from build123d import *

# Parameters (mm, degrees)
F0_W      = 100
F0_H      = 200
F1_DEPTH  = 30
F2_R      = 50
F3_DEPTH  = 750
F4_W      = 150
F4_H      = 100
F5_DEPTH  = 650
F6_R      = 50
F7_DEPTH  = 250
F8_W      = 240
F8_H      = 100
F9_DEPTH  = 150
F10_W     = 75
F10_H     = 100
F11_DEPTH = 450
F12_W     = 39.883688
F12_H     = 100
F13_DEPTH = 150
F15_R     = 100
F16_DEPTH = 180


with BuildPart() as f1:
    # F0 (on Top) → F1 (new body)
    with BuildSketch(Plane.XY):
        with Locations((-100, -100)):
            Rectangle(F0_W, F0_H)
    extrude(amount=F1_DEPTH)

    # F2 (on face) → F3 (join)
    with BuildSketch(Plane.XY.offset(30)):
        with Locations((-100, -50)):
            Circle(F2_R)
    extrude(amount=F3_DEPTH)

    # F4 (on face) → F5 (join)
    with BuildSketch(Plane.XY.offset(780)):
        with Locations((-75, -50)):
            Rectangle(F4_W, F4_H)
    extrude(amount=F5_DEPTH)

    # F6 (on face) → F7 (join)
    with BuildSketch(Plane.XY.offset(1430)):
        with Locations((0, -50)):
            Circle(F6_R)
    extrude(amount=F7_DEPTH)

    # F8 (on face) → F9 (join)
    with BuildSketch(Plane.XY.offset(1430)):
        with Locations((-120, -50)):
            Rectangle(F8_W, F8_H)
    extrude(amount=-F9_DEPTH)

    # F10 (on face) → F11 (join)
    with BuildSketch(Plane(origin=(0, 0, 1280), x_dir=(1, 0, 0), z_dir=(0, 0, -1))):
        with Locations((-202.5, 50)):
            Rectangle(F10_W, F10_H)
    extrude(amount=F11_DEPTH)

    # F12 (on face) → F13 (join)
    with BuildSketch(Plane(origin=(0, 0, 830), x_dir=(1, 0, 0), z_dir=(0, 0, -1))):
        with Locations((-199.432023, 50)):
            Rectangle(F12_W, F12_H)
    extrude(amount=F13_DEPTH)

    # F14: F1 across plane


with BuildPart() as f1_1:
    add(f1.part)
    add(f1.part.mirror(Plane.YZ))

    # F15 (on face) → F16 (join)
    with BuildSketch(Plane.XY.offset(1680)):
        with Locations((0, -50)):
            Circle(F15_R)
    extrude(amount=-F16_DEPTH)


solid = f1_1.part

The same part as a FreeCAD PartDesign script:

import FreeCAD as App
import Part
import Sketcher
Q = App.Units.Quantity

doc = App.newDocument("Part")
params = doc.addObject("Spreadsheet::Sheet", "Params")
for row, (alias, value) in enumerate([
    ("sketch1_width", "100 mm"),
    ("sketch1_height", "200 mm"),
    ("pad1_length", "30 mm"),
    ("sketch2_diameter", "100 mm"),
    ("pad2_length", "750 mm"),
    ("sketch3_width", "150 mm"),
    ("sketch3_height", "100 mm"),
    ("pad3_length", "650 mm"),
    ("sketch4_diameter", "100 mm"),
    ("pad4_length", "250 mm"),
    ("sketch5_width", "240 mm"),
    ("sketch5_height", "100 mm"),
    ("pad5_length", "150 mm"),
    ("sketch6_width", "75 mm"),
    ("sketch6_height", "100 mm"),
    ("pad6_length", "450 mm"),
    ("sketch7_height", "100 mm"),
    ("pad7_length", "150 mm"),
    ("sketch8_diameter", "200 mm"),
    ("pad8_length", "180 mm"),
], start=1):
    params.set(f"A{row}", alias)
    params.set(f"B{row}", "=" + value)
    params.setAlias(f"B{row}", alias)

body = doc.addObject("PartDesign::Body", "Body")

sketch1 = doc.addObject("Sketcher::SketchObject", "Sketch")
body.addObject(sketch1)
sketch1.AttachmentSupport = (doc.XY_Plane, [""])
sketch1.MapMode = "FlatFace"
sketch1.addGeometry([
    Part.LineSegment(App.Vector(-150, 0, 0), App.Vector(-150, -200, 0)),
    Part.LineSegment(App.Vector(-150, -200, 0), App.Vector(-50, -200, 0)),
    Part.LineSegment(App.Vector(-50, -200, 0), App.Vector(-50, 0, 0)),
    Part.LineSegment(App.Vector(-50, 0, 0), App.Vector(-150, 0, 0)),
], False)
sketch1.addConstraint([
    Sketcher.Constraint("Coincident", 0, 2, 1, 1),
    Sketcher.Constraint("Coincident", 1, 2, 2, 1),
    Sketcher.Constraint("Coincident", 2, 2, 3, 1),
    Sketcher.Constraint("Coincident", 3, 2, 0, 1),
    Sketcher.Constraint("Vertical", 0),
    Sketcher.Constraint("Horizontal", 1),
    Sketcher.Constraint("Vertical", 2),
    Sketcher.Constraint("Horizontal", 3),
    Sketcher.Constraint("PointOnObject", 2, 2, -1),
    Sketcher.Constraint("DistanceX", 1, 1, 1, 2, Q("100 mm")),
    Sketcher.Constraint("DistanceY", 0, 2, 0, 1, Q("200 mm")),
    Sketcher.Constraint("DistanceX", 0, 2, -1, 1, Q("150 mm")),
])
sketch1.setExpression("Constraints[9]", "Params.sketch1_width")
sketch1.setExpression("Constraints[10]", "Params.sketch1_height")
pad1 = doc.addObject("PartDesign::Pad", "Pad")
body.addObject(pad1)
pad1.Profile = sketch1
pad1.setExpression("Length", "Params.pad1_length")

sketch2 = doc.addObject("Sketcher::SketchObject", "Sketch001")
body.addObject(sketch2)
sketch2.AttachmentSupport = (doc.XY_Plane, [""])
sketch2.MapMode = "FlatFace"
sketch2.AttachmentOffset = App.Placement(App.Vector(0, 0, 30), App.Rotation())
sketch2.addGeometry(Part.Circle(App.Vector(-100, -50, 0), App.Vector(0, 0, 1), 50), False)
sketch2.addConstraint([
    Sketcher.Constraint("Diameter", 0, Q("100 mm")),
    Sketcher.Constraint("DistanceX", 0, 3, -1, 1, Q("100 mm")),
    Sketcher.Constraint("DistanceY", 0, 3, -1, 1, Q("50 mm")),
])
sketch2.setExpression("Constraints[0]", "Params.sketch2_diameter")
pad2 = doc.addObject("PartDesign::Pad", "Pad001")
body.addObject(pad2)
pad2.Profile = sketch2
pad2.setExpression("Length", "Params.pad2_length")

sketch3 = doc.addObject("Sketcher::SketchObject", "Sketch002")
body.addObject(sketch3)
sketch3.AttachmentSupport = (doc.XY_Plane, [""])
sketch3.MapMode = "FlatFace"
sketch3.AttachmentOffset = App.Placement(App.Vector(0, 0, 780), App.Rotation())
sketch3.addGeometry([
    Part.LineSegment(App.Vector(-150, 0, 0), App.Vector(-150, -100, 0)),
    Part.LineSegment(App.Vector(-150, -100, 0), App.Vector(0, -100, 0)),
    Part.LineSegment(App.Vector(0, -100, 0), App.Vector(0, 0, 0)),
    Part.LineSegment(App.Vector(0, 0, 0), App.Vector(-150, 0, 0)),
], False)
sketch3.addConstraint([
    Sketcher.Constraint("Coincident", 0, 2, 1, 1),
    Sketcher.Constraint("Coincident", 1, 2, 2, 1),
    Sketcher.Constraint("Coincident", 2, 2, 3, 1),
    Sketcher.Constraint("Coincident", 3, 2, 0, 1),
    Sketcher.Constraint("Vertical", 0),
    Sketcher.Constraint("Horizontal", 1),
    Sketcher.Constraint("Vertical", 2),
    Sketcher.Constraint("Horizontal", 3),
    Sketcher.Constraint("Coincident", 2, 2, -1, 1),
    Sketcher.Constraint("DistanceX", 1, 1, 1, 2, Q("150 mm")),
    Sketcher.Constraint("DistanceY", 0, 2, 0, 1, Q("100 mm")),
])
sketch3.setExpression("Constraints[9]", "Params.sketch3_width")
sketch3.setExpression("Constraints[10]", "Params.sketch3_height")
pad3 = doc.addObject("PartDesign::Pad", "Pad002")
body.addObject(pad3)
pad3.Profile = sketch3
pad3.setExpression("Length", "Params.pad3_length")

sketch4 = doc.addObject("Sketcher::SketchObject", "Sketch003")
body.addObject(sketch4)
sketch4.AttachmentSupport = (doc.XY_Plane, [""])
sketch4.MapMode = "FlatFace"
sketch4.AttachmentOffset = App.Placement(App.Vector(0, 0, 1430), App.Rotation())
sketch4.addGeometry(Part.Circle(App.Vector(0, -50, 0), App.Vector(0, 0, 1), 50), False)
sketch4.addConstraint([
    Sketcher.Constraint("PointOnObject", 0, 3, -2),
    Sketcher.Constraint("Diameter", 0, Q("100 mm")),
    Sketcher.Constraint("DistanceY", 0, 3, -1, 1, Q("50 mm")),
])
sketch4.setExpression("Constraints[1]", "Params.sketch4_diameter")
pad4 = doc.addObject("PartDesign::Pad", "Pad003")
body.addObject(pad4)
pad4.Profile = sketch4
pad4.setExpression("Length", "Params.pad4_length")

sketch5 = doc.addObject("Sketcher::SketchObject", "Sketch004")
body.addObject(sketch5)
sketch5.AttachmentSupport = (doc.XY_Plane, [""])
sketch5.MapMode = "FlatFace"
sketch5.AttachmentOffset = App.Placement(App.Vector(0, 0, 1430), App.Rotation())
sketch5.addGeometry([
    Part.LineSegment(App.Vector(-240, 0, 0), App.Vector(-240, -100, 0)),
    Part.LineSegment(App.Vector(-240, -100, 0), App.Vector(0, -100, 0)),
    Part.LineSegment(App.Vector(0, -100, 0), App.Vector(0, 0, 0)),
    Part.LineSegment(App.Vector(0, 0, 0), App.Vector(-240, 0, 0)),
], False)
sketch5.addConstraint([
    Sketcher.Constraint("Coincident", 0, 2, 1, 1),
    Sketcher.Constraint("Coincident", 1, 2, 2, 1),
    Sketcher.Constraint("Coincident", 2, 2, 3, 1),
    Sketcher.Constraint("Coincident", 3, 2, 0, 1),
    Sketcher.Constraint("Vertical", 0),
    Sketcher.Constraint("Horizontal", 1),
    Sketcher.Constraint("Vertical", 2),
    Sketcher.Constraint("Horizontal", 3),
    Sketcher.Constraint("Coincident", 2, 2, -1, 1),
    Sketcher.Constraint("DistanceX", 1, 1, 1, 2, Q("240 mm")),
    Sketcher.Constraint("DistanceY", 0, 2, 0, 1, Q("100 mm")),
])
sketch5.setExpression("Constraints[9]", "Params.sketch5_width")
sketch5.setExpression("Constraints[10]", "Params.sketch5_height")
pad5 = doc.addObject("PartDesign::Pad", "Pad004")
body.addObject(pad5)
pad5.Profile = sketch5
pad5.setExpression("Length", "Params.pad5_length")
pad5.Reversed = True

sketch6 = doc.addObject("Sketcher::SketchObject", "Sketch005")
body.addObject(sketch6)
sketch6.AttachmentSupport = (doc.XY_Plane, [""])
sketch6.MapMode = "FlatFace"
sketch6.AttachmentOffset = App.Placement(App.Vector(0, 0, 1280), App.Rotation())
sketch6.addGeometry([
    Part.LineSegment(App.Vector(-240, -100, 0), App.Vector(-240, 0, 0)),
    Part.LineSegment(App.Vector(-240, 0, 0), App.Vector(-165, 0, 0)),
    Part.LineSegment(App.Vector(-165, 0, 0), App.Vector(-165, -100, 0)),
    Part.LineSegment(App.Vector(-165, -100, 0), App.Vector(-240, -100, 0)),
], False)
sketch6.addConstraint([
    Sketcher.Constraint("Coincident", 0, 2, 1, 1),
    Sketcher.Constraint("Coincident", 1, 2, 2, 1),
    Sketcher.Constraint("Coincident", 2, 2, 3, 1),
    Sketcher.Constraint("Coincident", 3, 2, 0, 1),
    Sketcher.Constraint("Vertical", 0),
    Sketcher.Constraint("Horizontal", 1),
    Sketcher.Constraint("Vertical", 2),
    Sketcher.Constraint("Horizontal", 3),
    Sketcher.Constraint("PointOnObject", 0, 2, -1),
    Sketcher.Constraint("DistanceX", 1, 1, 1, 2, Q("75 mm")),
    Sketcher.Constraint("DistanceY", 0, 1, 0, 2, Q("100 mm")),
    Sketcher.Constraint("DistanceX", 0, 2, -1, 1, Q("240 mm")),
])
sketch6.setExpression("Constraints[9]", "Params.sketch6_width")
sketch6.setExpression("Constraints[10]", "Params.sketch6_height")
pad6 = doc.addObject("PartDesign::Pad", "Pad005")
body.addObject(pad6)
pad6.Profile = sketch6
pad6.setExpression("Length", "Params.pad6_length")
pad6.Reversed = True

sketch7 = doc.addObject("Sketcher::SketchObject", "Sketch006")
body.addObject(sketch7)
sketch7.AttachmentSupport = (doc.XY_Plane, [""])
sketch7.MapMode = "FlatFace"
sketch7.AttachmentOffset = App.Placement(App.Vector(0, 0, 830), App.Rotation())
sketch7.addGeometry([
    Part.LineSegment(App.Vector(-219, -100, 0), App.Vector(-219, 0, 0)),
    Part.LineSegment(App.Vector(-219, 0, 0), App.Vector(-179, 0, 0)),
    Part.LineSegment(App.Vector(-179, 0, 0), App.Vector(-179, -100, 0)),
    Part.LineSegment(App.Vector(-179, -100, 0), App.Vector(-219, -100, 0)),
], False)
sketch7.addConstraint([
    Sketcher.Constraint("Coincident", 0, 2, 1, 1),
    Sketcher.Constraint("Coincident", 1, 2, 2, 1),
    Sketcher.Constraint("Coincident", 2, 2, 3, 1),
    Sketcher.Constraint("Coincident", 3, 2, 0, 1),
    Sketcher.Constraint("Vertical", 0),
    Sketcher.Constraint("Horizontal", 1),
    Sketcher.Constraint("Vertical", 2),
    Sketcher.Constraint("Horizontal", 3),
    Sketcher.Constraint("PointOnObject", 0, 2, -1),
    Sketcher.Constraint("DistanceY", 0, 1, 0, 2, Q("100 mm")),
    Sketcher.Constraint("DistanceX", 1, 1, 1, 2, Q("39.883688 mm")),
    Sketcher.Constraint("DistanceX", 1, 2, -1, 1, Q("179.490179 mm")),
])
sketch7.setExpression("Constraints[9]", "Params.sketch7_height")
pad7 = doc.addObject("PartDesign::Pad", "Pad006")
body.addObject(pad7)
pad7.Profile = sketch7
pad7.setExpression("Length", "Params.pad7_length")
pad7.Reversed = True
body2 = doc.addObject("PartDesign::Body", "Body001")
doc.recompute()

body2.BaseFeature = body
doc.recompute()

mirroring = doc.addObject("Part::Mirroring", "Mirroring")
mirroring.Source = body
mirroring.Base = App.Vector(0, 0, 0)
mirroring.Normal = App.Vector(1, 0, 0)
body3 = doc.addObject("PartDesign::Body", "Body002")
body3.BaseFeature = mirroring
boolean = doc.addObject("PartDesign::Boolean", "Boolean")
body2.addObject(boolean)
boolean.Type = "Fuse"
boolean.addObjects([body3])
doc.recompute()

sketch8 = doc.addObject("Sketcher::SketchObject", "Sketch007")
body2.addObject(sketch8)
sketch8.AttachmentSupport = (doc.getObject("XY_Plane001"), [""])
sketch8.MapMode = "FlatFace"
sketch8.AttachmentOffset = App.Placement(App.Vector(0, 0, 1680), App.Rotation())
sketch8.addGeometry(Part.Circle(App.Vector(0, -50, 0), App.Vector(0, 0, 1), 100), False)
sketch8.addConstraint([
    Sketcher.Constraint("PointOnObject", 0, 3, -2),
    Sketcher.Constraint("Diameter", 0, Q("200 mm")),
    Sketcher.Constraint("DistanceY", 0, 3, -1, 1, Q("50 mm")),
])
sketch8.setExpression("Constraints[1]", "Params.sketch8_diameter")
pad8 = doc.addObject("PartDesign::Pad", "Pad007")
body2.addObject(pad8)
pad8.Profile = sketch8
pad8.setExpression("Length", "Params.pad8_length")
pad8.Reversed = True
mirroring.Visibility = False

doc.recompute()
